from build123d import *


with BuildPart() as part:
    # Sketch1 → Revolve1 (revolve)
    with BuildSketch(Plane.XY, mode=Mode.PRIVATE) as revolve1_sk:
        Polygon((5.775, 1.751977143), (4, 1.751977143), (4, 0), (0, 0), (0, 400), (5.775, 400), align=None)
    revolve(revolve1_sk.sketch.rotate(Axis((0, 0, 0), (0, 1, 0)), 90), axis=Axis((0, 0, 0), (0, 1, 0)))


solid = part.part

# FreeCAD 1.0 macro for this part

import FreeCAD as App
import Part
import Sketcher
from FreeCAD import Vector
Q = App.Units.Quantity


def add_polygon(sketch, points):
    """Adds a closed chain of lines whose ends are joined by coincident constraints."""
    first, n = sketch.GeometryCount, len(points)
    for a, b in zip(points, points[1:] + points[:1]):
        sketch.addGeometry(Part.LineSegment(App.Vector(*a, 0), App.Vector(*b, 0)), False)
    for i in range(n):
        sketch.addConstraint(Sketcher.Constraint("Coincident", first + i, 2, first + (i + 1) % n, 1))

doc = App.newDocument("Part")
body = doc.addObject("PartDesign::Body", "Body")

# Sketch on XY plane
sketch1 = body.newObject("Sketcher::SketchObject", "Sketch")
sketch1.AttachmentSupport = (doc.getObject("XY_Plane"), [""])
sketch1.MapMode = "FlatFace"
add_polygon(sketch1, [(4, 1.8), (5.8, 1.8), (5.8, 400), (0, 400), (0, 0), (4, 0)])  # lines 0-5
sketch1.addConstraint([
    Sketcher.Constraint("Horizontal", 0),
    Sketcher.Constraint("Vertical", 1),
    Sketcher.Constraint("Horizontal", 2),
    Sketcher.Constraint("Vertical", 3),
    Sketcher.Constraint("Horizontal", 4),
    Sketcher.Constraint("Vertical", 5),
    Sketcher.Constraint("Coincident", 3, 2, -1, 1),
    Sketcher.Constraint("DistanceX", 4, 1, 4, 2, Q("4 mm")),
    Sketcher.Constraint("DistanceY", 3, 2, 3, 1, Q("400 mm")),
    Sketcher.Constraint("DistanceX", 0, 1, 0, 2, Q("1.775 mm")),
    Sketcher.Constraint("DistanceY", 1, 1, 1, 2, Q("398.248023 mm")),
])
revolution = body.newObject("PartDesign::Revolution", "Revolution")
revolution.Profile = sketch1
revolution.ReferenceAxis = (sketch1, ["V_Axis"])
revolution.Angle = 360

doc.recompute()
